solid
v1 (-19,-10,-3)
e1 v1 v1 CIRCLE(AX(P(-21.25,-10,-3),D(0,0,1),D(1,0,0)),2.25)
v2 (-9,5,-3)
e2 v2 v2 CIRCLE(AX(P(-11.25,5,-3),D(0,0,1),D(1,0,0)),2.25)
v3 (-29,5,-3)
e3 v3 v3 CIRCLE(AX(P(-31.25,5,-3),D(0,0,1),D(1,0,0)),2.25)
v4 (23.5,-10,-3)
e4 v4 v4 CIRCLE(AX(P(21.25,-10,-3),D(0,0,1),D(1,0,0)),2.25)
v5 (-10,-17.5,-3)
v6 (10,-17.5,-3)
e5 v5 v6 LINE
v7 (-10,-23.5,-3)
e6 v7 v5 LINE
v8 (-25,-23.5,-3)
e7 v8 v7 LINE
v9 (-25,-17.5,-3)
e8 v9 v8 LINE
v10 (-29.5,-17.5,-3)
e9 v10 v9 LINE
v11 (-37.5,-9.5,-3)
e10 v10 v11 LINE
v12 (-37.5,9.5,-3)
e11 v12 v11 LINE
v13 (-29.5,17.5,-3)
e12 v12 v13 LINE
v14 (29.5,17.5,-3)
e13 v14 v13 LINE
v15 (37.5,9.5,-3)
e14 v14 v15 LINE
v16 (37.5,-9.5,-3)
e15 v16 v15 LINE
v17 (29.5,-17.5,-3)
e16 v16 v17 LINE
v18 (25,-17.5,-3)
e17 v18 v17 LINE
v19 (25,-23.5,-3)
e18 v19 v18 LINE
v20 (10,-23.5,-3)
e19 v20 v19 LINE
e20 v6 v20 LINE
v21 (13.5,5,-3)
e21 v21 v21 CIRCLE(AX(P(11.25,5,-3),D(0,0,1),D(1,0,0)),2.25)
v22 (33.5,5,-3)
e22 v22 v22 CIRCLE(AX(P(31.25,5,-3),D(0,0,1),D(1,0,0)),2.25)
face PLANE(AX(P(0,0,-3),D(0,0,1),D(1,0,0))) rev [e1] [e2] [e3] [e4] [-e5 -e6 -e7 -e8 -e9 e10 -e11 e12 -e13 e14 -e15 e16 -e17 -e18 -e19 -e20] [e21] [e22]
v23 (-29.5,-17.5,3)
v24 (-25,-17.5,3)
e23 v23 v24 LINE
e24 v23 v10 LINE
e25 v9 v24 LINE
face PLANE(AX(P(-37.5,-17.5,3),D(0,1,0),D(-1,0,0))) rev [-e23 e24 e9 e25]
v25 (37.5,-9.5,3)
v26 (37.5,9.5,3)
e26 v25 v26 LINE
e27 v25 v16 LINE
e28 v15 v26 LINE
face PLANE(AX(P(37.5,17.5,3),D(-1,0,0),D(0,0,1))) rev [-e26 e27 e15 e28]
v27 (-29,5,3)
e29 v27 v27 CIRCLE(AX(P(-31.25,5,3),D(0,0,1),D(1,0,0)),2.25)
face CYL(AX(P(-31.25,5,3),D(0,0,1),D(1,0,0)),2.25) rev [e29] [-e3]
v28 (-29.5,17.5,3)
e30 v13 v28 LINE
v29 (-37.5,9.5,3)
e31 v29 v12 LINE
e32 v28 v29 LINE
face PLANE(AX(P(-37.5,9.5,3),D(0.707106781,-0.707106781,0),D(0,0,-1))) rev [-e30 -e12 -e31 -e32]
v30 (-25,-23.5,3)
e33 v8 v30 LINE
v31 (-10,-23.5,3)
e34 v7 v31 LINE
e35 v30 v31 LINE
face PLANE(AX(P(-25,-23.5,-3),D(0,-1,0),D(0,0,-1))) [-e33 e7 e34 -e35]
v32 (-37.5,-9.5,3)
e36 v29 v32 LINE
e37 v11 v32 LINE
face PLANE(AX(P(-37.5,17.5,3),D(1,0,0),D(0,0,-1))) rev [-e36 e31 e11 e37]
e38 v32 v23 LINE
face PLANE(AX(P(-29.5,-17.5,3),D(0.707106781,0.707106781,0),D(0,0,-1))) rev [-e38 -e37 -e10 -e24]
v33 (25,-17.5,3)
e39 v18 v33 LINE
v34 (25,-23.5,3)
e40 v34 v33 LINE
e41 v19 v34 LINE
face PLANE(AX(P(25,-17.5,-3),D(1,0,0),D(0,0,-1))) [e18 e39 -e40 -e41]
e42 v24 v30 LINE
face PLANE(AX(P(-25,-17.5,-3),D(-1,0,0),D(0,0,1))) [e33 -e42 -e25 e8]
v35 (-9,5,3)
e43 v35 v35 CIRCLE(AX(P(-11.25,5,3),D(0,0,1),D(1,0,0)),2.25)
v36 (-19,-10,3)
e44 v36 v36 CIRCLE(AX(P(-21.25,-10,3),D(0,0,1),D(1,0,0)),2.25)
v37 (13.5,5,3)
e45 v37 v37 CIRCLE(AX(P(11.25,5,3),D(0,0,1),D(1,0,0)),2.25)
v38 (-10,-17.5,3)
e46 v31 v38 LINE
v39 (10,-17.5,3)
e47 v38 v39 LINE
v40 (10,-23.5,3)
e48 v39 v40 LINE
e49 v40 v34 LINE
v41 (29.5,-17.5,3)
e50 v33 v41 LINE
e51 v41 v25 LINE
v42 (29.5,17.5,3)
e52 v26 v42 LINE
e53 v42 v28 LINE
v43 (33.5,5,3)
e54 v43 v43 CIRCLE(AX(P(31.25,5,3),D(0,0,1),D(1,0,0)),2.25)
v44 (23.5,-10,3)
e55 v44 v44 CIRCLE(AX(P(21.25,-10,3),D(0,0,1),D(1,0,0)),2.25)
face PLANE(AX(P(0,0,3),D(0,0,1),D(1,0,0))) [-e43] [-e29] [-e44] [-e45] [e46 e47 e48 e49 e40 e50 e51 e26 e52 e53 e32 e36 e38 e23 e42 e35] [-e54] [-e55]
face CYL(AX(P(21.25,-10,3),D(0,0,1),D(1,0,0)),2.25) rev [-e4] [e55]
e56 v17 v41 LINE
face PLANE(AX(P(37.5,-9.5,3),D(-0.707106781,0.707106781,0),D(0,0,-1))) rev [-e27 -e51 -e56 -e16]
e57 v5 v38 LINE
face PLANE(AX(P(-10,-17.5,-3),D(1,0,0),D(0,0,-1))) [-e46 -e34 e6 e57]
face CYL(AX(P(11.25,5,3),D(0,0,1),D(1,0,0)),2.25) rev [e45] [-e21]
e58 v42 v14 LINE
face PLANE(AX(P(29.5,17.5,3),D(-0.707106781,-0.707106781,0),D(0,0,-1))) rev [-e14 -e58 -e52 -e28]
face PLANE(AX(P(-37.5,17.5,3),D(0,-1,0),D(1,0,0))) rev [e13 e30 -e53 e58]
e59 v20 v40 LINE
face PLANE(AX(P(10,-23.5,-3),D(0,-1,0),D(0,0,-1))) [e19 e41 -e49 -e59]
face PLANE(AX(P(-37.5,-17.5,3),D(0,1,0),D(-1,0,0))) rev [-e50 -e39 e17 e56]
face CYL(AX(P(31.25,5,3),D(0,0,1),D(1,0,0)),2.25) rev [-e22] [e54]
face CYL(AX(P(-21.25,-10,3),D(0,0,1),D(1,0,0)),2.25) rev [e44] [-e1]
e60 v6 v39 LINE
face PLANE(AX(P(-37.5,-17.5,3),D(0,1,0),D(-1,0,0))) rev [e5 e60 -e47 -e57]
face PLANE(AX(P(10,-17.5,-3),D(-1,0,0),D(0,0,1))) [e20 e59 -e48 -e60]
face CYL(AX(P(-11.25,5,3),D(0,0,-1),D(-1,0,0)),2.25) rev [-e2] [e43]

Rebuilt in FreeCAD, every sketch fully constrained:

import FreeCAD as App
import Part
import Sketcher
from FreeCAD import Vector
Q = App.Units.Quantity


def edges_at(feature, points):
    """Names of the edges that pass closest to the given points."""
    edges = feature.Shape.Edges
    near = lambda p: min(range(len(edges)), key=lambda i: edges[i].distToShape(Part.Vertex(*p))[0])
    return sorted({f"Edge{near(p) + 1}" for p in points})

doc = App.newDocument("Part")
body = doc.addObject("PartDesign::Body", "Body")

# Sketch on XY plane
sketch1 = doc.addObject("Sketcher::SketchObject", "Sketch")
body.addObject(sketch1)
sketch1.AttachmentSupport = (doc.XY_Plane, [""])
sketch1.MapMode = "FlatFace"
sketch1.addGeometry(Part.LineSegment(Vector(-37.5, 17.5, 0), Vector(-37.5, -17.5, 0)), False)
sketch1.addGeometry(Part.LineSegment(Vector(-37.5, -17.5, 0), Vector(37.5, -17.5, 0)), False)
sketch1.addGeometry(Part.LineSegment(Vector(37.5, -17.5, 0), Vector(37.5, 17.5, 0)), False)
sketch1.addGeometry(Part.LineSegment(Vector(37.5, 17.5, 0), Vector(-37.5, 17.5, 0)), False)
sketch1.addGeometry(Part.Circle(Vector(-11.2, 5, 0), Vector(0, 0, 1), 2.2), False)
sketch1.addConstraint(Sketcher.Constraint("Coincident", 0, 2, 1, 1))
sketch1.addConstraint(Sketcher.Constraint("Coincident", 1, 2, 2, 1))
sketch1.addConstraint(Sketcher.Constraint("Coincident", 2, 2, 3, 1))
sketch1.addConstraint(Sketcher.Constraint("Coincident", 3, 2, 0, 1))
sketch1.addConstraint(Sketcher.Constraint("Vertical", 0))
sketch1.addConstraint(Sketcher.Constraint("Horizontal", 1))
sketch1.addConstraint(Sketcher.Constraint("Vertical", 2))
sketch1.addConstraint(Sketcher.Constraint("Horizontal", 3))
sketch1.addConstraint(Sketcher.Constraint("Symmetric", 0, 2, 2, 2, -1, 1))
sketch1.addConstraint(Sketcher.Constraint("Diameter", 4, Q("4.5 mm")))
sketch1.addConstraint(Sketcher.Constraint("DistanceX", 1, 1, 1, 2, Q("75 mm")))
sketch1.addConstraint(Sketcher.Constraint("DistanceY", 0, 2, 0, 1, Q("35 mm")))
sketch1.addConstraint(Sketcher.Constraint("DistanceY", -1, 1, 4, 3, Q("5 mm")))
sketch1.addConstraint(Sketcher.Constraint("DistanceX", 4, 3, -1, 1, Q("11.25 mm")))
pad1 = doc.addObject("PartDesign::Pad", "Pad")
body.addObject(pad1)
pad1.Profile = sketch1
pad1.Length = 6
pad1.Midplane = True

# Sketch on XY plane
sketch2 = doc.addObject("Sketcher::SketchObject", "Sketch001")
body.addObject(sketch2)
sketch2.AttachmentSupport = (doc.XY_Plane, [""])
sketch2.MapMode = "FlatFace"
sketch2.AttachmentOffset = App.Placement(Vector(0, 0, 3), App.Rotation())
sketch2.addGeometry(Part.Circle(Vector(-31.2, 5, 0), Vector(0, 0, 1), 2.2), False)
sketch2.addGeometry(Part.Circle(Vector(31.2, 5, 0), Vector(0, 0, 1), 2.2), False)
sketch2.addGeometry(Part.Circle(Vector(11.2, 5, 0), Vector(0, 0, 1), 2.2), False)
sketch2.addGeometry(Part.Circle(Vector(-21.2, -10, 0), Vector(0, 0, 1), 2.2), False)
sketch2.addGeometry(Part.Circle(Vector(21.2, -10, 0), Vector(0, 0, 1), 2.2), False)
sketch2.addConstraint(Sketcher.Constraint("Equal", 0, 1))
sketch2.addConstraint(Sketcher.Constraint("Equal", 1, 2))
sketch2.addConstraint(Sketcher.Constraint("Equal", 2, 3))
sketch2.addConstraint(Sketcher.Constraint("Equal", 3, 4))
sketch2.addConstraint(Sketcher.Constraint("Symmetric", 0, 3, 1, 3, -2))
sketch2.addConstraint(Sketcher.Constraint("Symmetric", 3, 3, 4, 3, -2))
sketch2.addConstraint(Sketcher.Constraint("Horizontal", 1, 3, 2, 3))
sketch2.addConstraint(Sketcher.Constraint("Diameter", 0, Q("4.5 mm")))
sketch2.addConstraint(Sketcher.Constraint("DistanceY", -1, 1, 0, 3, Q("5 mm")))
sketch2.addConstraint(Sketcher.Constraint("DistanceY", 3, 3, -1, 1, Q("10 mm")))
sketch2.addConstraint(Sketcher.Constraint("DistanceX", 2, 3, 1, 3, Q("20 mm")))
sketch2.addConstraint(Sketcher.Constraint("DistanceX", 0, 3, 3, 3, Q("10 mm")))
sketch2.addConstraint(Sketcher.Constraint("DistanceX", 0, 3, 1, 3, Q("62.5 mm")))
doc.recompute()
hole = doc.addObject("PartDesign::Hole", "Hole")
body.addObject(hole)
hole.Profile = sketch2
hole.ThreadType = "None"
hole.Diameter = 4.5
hole.DepthType = "ThroughAll"

# Sketch on XY plane
sketch3 = doc.addObject("Sketcher::SketchObject", "Sketch002")
body.addObject(sketch3)
sketch3.AttachmentSupport = (doc.XY_Plane, [""])
sketch3.MapMode = "FlatFace"
sketch3.AttachmentOffset = App.Placement(Vector(0, 0, 3), App.Rotation())
sketch3.addGeometry(Part.LineSegment(Vector(-25, -18, 0), Vector(-25, -24, 0)), False)
sketch3.addGeometry(Part.LineSegment(Vector(-25, -24, 0), Vector(-10, -24, 0)), False)
sketch3.addGeometry(Part.LineSegment(Vector(-10, -24, 0), Vector(-10, -18, 0)), False)
sketch3.addGeometry(Part.LineSegment(Vector(-10, -18, 0), Vector(-25, -18, 0)), False)
sketch3.addGeometry(Part.LineSegment(Vector(10, -18, 0), Vector(10, -24, 0)), False)
sketch3.addGeometry(Part.LineSegment(Vector(10, -24, 0), Vector(25, -24, 0)), False)
sketch3.addGeometry(Part.LineSegment(Vector(25, -24, 0), Vector(25, -18, 0)), False)
sketch3.addGeometry(Part.LineSegment(Vector(25, -18, 0), Vector(10, -18, 0)), False)
sketch3.addConstraint(Sketcher.Constraint("Coincident", 0, 2, 1, 1))
sketch3.addConstraint(Sketcher.Constraint("Coincident", 1, 2, 2, 1))
sketch3.addConstraint(Sketcher.Constraint("Coincident", 2, 2, 3, 1))
sketch3.addConstraint(Sketcher.Constraint("Coincident", 3, 2, 0, 1))
sketch3.addConstraint(Sketcher.Constraint("Coincident", 4, 2, 5, 1))
sketch3.addConstraint(Sketcher.Constraint("Coincident", 5, 2, 6, 1))
sketch3.addConstraint(Sketcher.Constraint("Coincident", 6, 2, 7, 1))
sketch3.addConstraint(Sketcher.Constraint("Coincident", 7, 2, 4, 1))
sketch3.addConstraint(Sketcher.Constraint("Vertical", 0))
sketch3.addConstraint(Sketcher.Constraint("Horizontal", 1))
sketch3.addConstraint(Sketcher.Constraint("Vertical", 2))
sketch3.addConstraint(Sketcher.Constraint("Horizontal", 3))
sketch3.addConstraint(Sketcher.Constraint("Vertical", 4))
sketch3.addConstraint(Sketcher.Constraint("Horizontal", 5))
sketch3.addConstraint(Sketcher.Constraint("Vertical", 6))
sketch3.addConstraint(Sketcher.Constraint("Horizontal", 7))
sketch3.addConstraint(Sketcher.Constraint("Symmetric", 1, 2, 4, 2, -2))
sketch3.addConstraint(Sketcher.Constraint("Symmetric", 3, 2, 6, 2, -2))
sketch3.addConstraint(Sketcher.Constraint("DistanceX", 1, 1, 1, 2, Q("15 mm")))
sketch3.addConstraint(Sketcher.Constraint("DistanceY", 0, 2, 0, 1, Q("6 mm")))
sketch3.addConstraint(Sketcher.Constraint("DistanceX", 0, 2, -1, 1, Q("25 mm")))
sketch3.addConstraint(Sketcher.Constraint("DistanceY", 0, 2, -1, 1, Q("23.5 mm")))
pad2 = doc.addObject("PartDesign::Pad", "Pad001")
body.addObject(pad2)
pad2.Profile = sketch3
pad2.Length = 6
pad2.Reversed = True
doc.recompute()

chamfer = doc.addObject("PartDesign::Chamfer", "Chamfer")
body.addObject(chamfer)
chamfer.Base = (pad2, edges_at(pad2, [
    (-37.5, 17.5, 0),
    (37.5, 17.5, 0),
    (37.5, -17.5, 0),
    (-37.5, -17.5, 0),
]))
chamfer.Size = 8

doc.recompute()
